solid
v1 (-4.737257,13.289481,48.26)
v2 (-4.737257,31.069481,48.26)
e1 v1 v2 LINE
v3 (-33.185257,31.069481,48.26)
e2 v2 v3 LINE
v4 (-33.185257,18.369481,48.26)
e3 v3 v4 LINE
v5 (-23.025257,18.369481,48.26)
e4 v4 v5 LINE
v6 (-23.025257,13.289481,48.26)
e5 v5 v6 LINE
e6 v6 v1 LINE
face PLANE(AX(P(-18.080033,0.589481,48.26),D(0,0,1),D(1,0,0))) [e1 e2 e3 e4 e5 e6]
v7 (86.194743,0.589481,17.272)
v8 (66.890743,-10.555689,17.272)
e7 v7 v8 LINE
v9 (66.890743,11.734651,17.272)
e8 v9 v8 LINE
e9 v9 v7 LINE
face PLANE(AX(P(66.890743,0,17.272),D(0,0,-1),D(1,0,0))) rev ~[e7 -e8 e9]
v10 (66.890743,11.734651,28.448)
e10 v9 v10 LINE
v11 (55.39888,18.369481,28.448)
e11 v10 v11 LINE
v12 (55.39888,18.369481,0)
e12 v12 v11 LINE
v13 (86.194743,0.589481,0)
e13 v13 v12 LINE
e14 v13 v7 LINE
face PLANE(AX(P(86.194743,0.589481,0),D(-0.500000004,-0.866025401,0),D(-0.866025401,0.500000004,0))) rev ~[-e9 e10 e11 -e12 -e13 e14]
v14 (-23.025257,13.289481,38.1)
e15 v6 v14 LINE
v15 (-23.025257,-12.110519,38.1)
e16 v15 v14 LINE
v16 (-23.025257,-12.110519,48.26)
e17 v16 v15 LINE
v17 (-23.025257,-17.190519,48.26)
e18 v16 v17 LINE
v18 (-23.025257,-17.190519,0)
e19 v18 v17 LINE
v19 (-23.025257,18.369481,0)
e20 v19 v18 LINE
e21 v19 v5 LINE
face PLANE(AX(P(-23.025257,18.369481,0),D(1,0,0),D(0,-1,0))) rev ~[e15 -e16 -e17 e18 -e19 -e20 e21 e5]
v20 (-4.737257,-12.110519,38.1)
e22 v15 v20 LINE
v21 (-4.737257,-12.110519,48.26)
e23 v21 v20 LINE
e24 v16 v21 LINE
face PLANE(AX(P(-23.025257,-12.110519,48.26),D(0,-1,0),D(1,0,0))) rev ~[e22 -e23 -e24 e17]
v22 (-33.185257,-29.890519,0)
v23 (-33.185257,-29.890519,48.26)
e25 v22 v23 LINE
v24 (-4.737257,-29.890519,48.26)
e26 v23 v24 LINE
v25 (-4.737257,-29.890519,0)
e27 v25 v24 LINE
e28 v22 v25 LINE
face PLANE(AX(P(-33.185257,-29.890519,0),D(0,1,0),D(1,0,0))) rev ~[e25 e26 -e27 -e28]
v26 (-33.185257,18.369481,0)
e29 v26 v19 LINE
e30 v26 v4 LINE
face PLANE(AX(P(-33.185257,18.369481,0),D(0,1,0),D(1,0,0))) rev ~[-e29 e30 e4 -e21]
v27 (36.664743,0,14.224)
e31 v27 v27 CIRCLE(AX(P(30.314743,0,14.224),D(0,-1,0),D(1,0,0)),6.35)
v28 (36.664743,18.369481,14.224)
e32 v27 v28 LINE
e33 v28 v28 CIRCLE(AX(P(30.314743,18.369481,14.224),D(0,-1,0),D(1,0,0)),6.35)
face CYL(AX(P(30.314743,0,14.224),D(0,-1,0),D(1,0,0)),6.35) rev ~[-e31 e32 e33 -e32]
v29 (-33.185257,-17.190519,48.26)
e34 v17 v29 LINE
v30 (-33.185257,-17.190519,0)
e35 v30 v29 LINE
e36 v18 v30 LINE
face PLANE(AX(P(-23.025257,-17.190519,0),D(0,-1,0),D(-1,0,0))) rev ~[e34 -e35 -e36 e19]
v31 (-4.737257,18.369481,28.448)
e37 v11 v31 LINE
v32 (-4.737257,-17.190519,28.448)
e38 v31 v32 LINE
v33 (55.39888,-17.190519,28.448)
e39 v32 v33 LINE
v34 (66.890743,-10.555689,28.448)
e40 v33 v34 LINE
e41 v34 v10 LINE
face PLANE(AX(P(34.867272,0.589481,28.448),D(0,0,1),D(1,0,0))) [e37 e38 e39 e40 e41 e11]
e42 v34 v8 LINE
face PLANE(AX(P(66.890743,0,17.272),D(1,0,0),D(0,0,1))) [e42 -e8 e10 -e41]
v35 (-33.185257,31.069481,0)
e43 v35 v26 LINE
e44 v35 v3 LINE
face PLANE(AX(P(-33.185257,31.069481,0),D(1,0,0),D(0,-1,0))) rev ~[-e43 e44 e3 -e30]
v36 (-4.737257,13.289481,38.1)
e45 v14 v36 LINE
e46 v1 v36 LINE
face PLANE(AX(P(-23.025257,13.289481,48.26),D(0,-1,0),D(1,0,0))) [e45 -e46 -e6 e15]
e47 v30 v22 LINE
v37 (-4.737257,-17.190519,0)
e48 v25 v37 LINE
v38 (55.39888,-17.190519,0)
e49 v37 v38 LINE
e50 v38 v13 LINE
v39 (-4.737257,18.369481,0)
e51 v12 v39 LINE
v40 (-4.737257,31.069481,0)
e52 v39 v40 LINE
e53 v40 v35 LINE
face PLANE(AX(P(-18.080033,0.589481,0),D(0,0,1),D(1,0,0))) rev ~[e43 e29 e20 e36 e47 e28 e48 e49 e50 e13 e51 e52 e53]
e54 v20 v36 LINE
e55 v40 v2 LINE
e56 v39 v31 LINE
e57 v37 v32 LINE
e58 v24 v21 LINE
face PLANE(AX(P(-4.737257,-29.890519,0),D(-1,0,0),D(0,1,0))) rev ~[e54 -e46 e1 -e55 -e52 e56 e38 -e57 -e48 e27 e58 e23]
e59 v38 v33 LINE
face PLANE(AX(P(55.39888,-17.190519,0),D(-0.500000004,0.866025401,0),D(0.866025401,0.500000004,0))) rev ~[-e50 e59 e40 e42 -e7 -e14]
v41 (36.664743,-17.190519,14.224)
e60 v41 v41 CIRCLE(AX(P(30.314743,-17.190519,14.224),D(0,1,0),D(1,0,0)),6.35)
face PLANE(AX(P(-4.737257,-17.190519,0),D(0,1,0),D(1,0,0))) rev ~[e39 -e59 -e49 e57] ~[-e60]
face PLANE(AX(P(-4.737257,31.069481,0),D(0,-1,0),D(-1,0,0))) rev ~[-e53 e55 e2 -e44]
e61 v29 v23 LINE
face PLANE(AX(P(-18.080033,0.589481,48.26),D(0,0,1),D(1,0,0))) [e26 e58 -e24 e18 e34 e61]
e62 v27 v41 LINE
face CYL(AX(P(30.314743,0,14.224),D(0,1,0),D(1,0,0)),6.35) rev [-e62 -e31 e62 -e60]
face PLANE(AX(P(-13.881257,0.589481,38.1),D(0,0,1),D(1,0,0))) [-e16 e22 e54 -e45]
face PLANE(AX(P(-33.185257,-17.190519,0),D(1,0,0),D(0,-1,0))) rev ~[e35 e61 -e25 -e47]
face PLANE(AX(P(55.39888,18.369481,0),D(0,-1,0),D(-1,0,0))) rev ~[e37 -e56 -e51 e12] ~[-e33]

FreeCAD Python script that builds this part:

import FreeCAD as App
import Part
import Sketcher
from FreeCAD import Vector
Q = App.Units.Quantity

doc = App.newDocument("Part")
params = doc.addObject("Spreadsheet::Sheet", "Params")
for row, (alias, value) in enumerate([
    ("sketch1_width", "0.4 in"),
    ("sketch1_height", "0.5 in"),
    ("sketch1_height2", "1.4 in"),
    ("sketch1_width2", "1.12 in"),
    ("pad1_length", "1.9 in"),
    ("sketch2_height", "1 in"),
    ("sketch2_width", "0.72 in"),
    ("pocket1_length", "0.4 in"),
    ("sketch3_height", "1.4 in"),
    ("pad2_length", "1.12 in"),
    ("sketch4_diameter", "0.5 in"),
    ("pocket2_length", "3 in"),
], start=1):
    params.set(f"A{row}", alias)
    params.set(f"B{row}", "=" + value)
    params.setAlias(f"B{row}", alias)

body = doc.addObject("PartDesign::Body", "Body")

# Sketch on XY plane
sketch1 = doc.addObject("Sketcher::SketchObject", "Sketch")
body.addObject(sketch1)
sketch1.AttachmentSupport = (doc.XY_Plane, [""])
sketch1.MapMode = "FlatFace"
sketch1.addGeometry([
    Part.LineSegment(Vector(-5, 31, 0), Vector(-33, 31, 0)),  # 0
    Part.LineSegment(Vector(-33, 31, 0), Vector(-33, 18, 0)),  # 1
    Part.LineSegment(Vector(-33, 18, 0), Vector(-23, 18, 0)),  # 2
    Part.LineSegment(Vector(-23, 18, 0), Vector(-23, -17, 0)),  # 3
    Part.LineSegment(Vector(-23, -17, 0), Vector(-33, -17, 0)),  # 4
    Part.LineSegment(Vector(-33, -17, 0), Vector(-33, -30, 0)),  # 5
    Part.LineSegment(Vector(-33, -30, 0), Vector(-5, -30, 0)),  # 6
    Part.LineSegment(Vector(-5, -30, 0), Vector(-5, 31, 0)),  # 7
], False)
sketch1.addConstraint([
    Sketcher.Constraint("Coincident", 0, 2, 1, 1),
    Sketcher.Constraint("Coincident", 1, 2, 2, 1),
    Sketcher.Constraint("Coincident", 2, 2, 3, 1),
    Sketcher.Constraint("Coincident", 3, 2, 4, 1),
    Sketcher.Constraint("Coincident", 4, 2, 5, 1),
    Sketcher.Constraint("Coincident", 5, 2, 6, 1),
    Sketcher.Constraint("Coincident", 6, 2, 7, 1),
    Sketcher.Constraint("Coincident", 7, 2, 0, 1),
    Sketcher.Constraint("Horizontal", 0),
    Sketcher.Constraint("Vertical", 1),
    Sketcher.Constraint("Horizontal", 2),
    Sketcher.Constraint("Vertical", 3),
    Sketcher.Constraint("Horizontal", 4),
    Sketcher.Constraint("Vertical", 5),
    Sketcher.Constraint("Horizontal", 6),
    Sketcher.Constraint("Vertical", 7),
    Sketcher.Constraint("Vertical", 1, 2, 4, 2),
    Sketcher.Constraint("Equal", 1, 5),
    Sketcher.Constraint("DistanceX", 2, 1, 2, 2, Q("0.4 in")),
    Sketcher.Constraint("DistanceY", 1, 2, 1, 1, Q("0.5 in")),
    Sketcher.Constraint("DistanceY", 3, 2, 3, 1, Q("1.4 in")),
    Sketcher.Constraint("DistanceX", 0, 2, 0, 1, Q("1.12 in")),
    Sketcher.Constraint("DistanceY", -1, 1, 0, 2, Q("31.069481 mm")),
    Sketcher.Constraint("DistanceX", 0, 2, -1, 1, Q("33.185257 mm")),
])
sketch1.setExpression("Constraints[18]", "Params.sketch1_width")
sketch1.setExpression("Constraints[19]", "Params.sketch1_height")
sketch1.setExpression("Constraints[20]", "Params.sketch1_height2")
sketch1.setExpression("Constraints[21]", "Params.sketch1_width2")
pad1 = doc.addObject("PartDesign::Pad", "Pad")
body.addObject(pad1)
pad1.Profile = sketch1
pad1.setExpression("Length", "Params.pad1_length")

# Sketch on XY plane
sketch2 = doc.addObject("Sketcher::SketchObject", "Sketch001")
body.addObject(sketch2)
sketch2.AttachmentSupport = (doc.XY_Plane, [""])
sketch2.MapMode = "FlatFace"
sketch2.AttachmentOffset = App.Placement(Vector(0, 0, 1.9 * 25.4), App.Rotation())
sketch2.addGeometry([
    Part.LineSegment(Vector(-23, 13, 0), Vector(-23, -12, 0)),
    Part.LineSegment(Vector(-23, -12, 0), Vector(-5, -12, 0)),
    Part.LineSegment(Vector(-5, -12, 0), Vector(-5, 13, 0)),
    Part.LineSegment(Vector(-5, 13, 0), Vector(-23, 13, 0)),
], False)
sketch2.addConstraint([
    Sketcher.Constraint("Coincident", 0, 2, 1, 1),
    Sketcher.Constraint("Coincident", 1, 2, 2, 1),
    Sketcher.Constraint("Coincident", 2, 2, 3, 1),
    Sketcher.Constraint("Coincident", 3, 2, 0, 1),
    Sketcher.Constraint("Vertical", 0),
    Sketcher.Constraint("Horizontal", 1),
    Sketcher.Constraint("Vertical", 2),
    Sketcher.Constraint("Horizontal", 3),
    Sketcher.Constraint("DistanceY", 0, 2, 0, 1, Q("1 in")),
    Sketcher.Constraint("DistanceX", 1, 1, 1, 2, Q("0.72 in")),
    Sketcher.Constraint("DistanceY", 0, 2, -1, 1, Q("12.110519 mm")),
    Sketcher.Constraint("DistanceX", 0, 2, -1, 1, Q("23.025257 mm")),
])
sketch2.setExpression("Constraints[8]", "Params.sketch2_height")
sketch2.setExpression("Constraints[9]", "Params.sketch2_width")
pocket1 = doc.addObject("PartDesign::Pocket", "Pocket")
body.addObject(pocket1)
pocket1.Profile = sketch2
pocket1.setExpression("Length", "Params.pocket1_length")

# Sketch on XY plane
sketch3 = doc.addObject("Sketcher::SketchObject", "Sketch002")
body.addObject(sketch3)
sketch3.AttachmentSupport = (doc.XY_Plane, [""])
sketch3.MapMode = "FlatFace"
sketch3.addGeometry([
    Part.LineSegment(Vector(-5, 18, 0), Vector(-5, -17, 0)),  # 0
    Part.LineSegment(Vector(-5, -17, 0), Vector(55, -17, 0)),  # 1
    Part.LineSegment(Vector(55, -17, 0), Vector(86, 1, 0)),  # 2
    Part.LineSegment(Vector(86, 1, 0), Vector(55, 18, 0)),  # 3
    Part.LineSegment(Vector(55, 18, 0), Vector(-5, 18, 0)),  # 4
], False)
sketch3.addConstraint([
    Sketcher.Constraint("Coincident", 0, 2, 1, 1),
    Sketcher.Constraint("Coincident", 1, 2, 2, 1),
    Sketcher.Constraint("Coincident", 2, 2, 3, 1),
    Sketcher.Constraint("Coincident", 3, 2, 4, 1),
    Sketcher.Constraint("Coincident", 4, 2, 0, 1),
    Sketcher.Constraint("Vertical", 0),
    Sketcher.Constraint("Horizontal", 1),
    Sketcher.Constraint("Horizontal", 4),
    Sketcher.Constraint("Vertical", 1, 2, 3, 2),
    Sketcher.Constraint("Equal", 2, 3),
    Sketcher.Constraint("DistanceY", 0, 2, 0, 1, Q("1.4 in")),
    Sketcher.Constraint("Angle", 2, Q("30 deg")),
    Sketcher.Constraint("DistanceX", 0, 2, 2, 2, Q("3.58 in")),
    Sketcher.Constraint("DistanceY", 0, 2, -1, 1, Q("17.190519 mm")),
    Sketcher.Constraint("DistanceX", -1, 1, 1, 2, Q("55.39888 mm")),
])
sketch3.setExpression("Constraints[10]", "Params.sketch3_height")
pad2 = doc.addObject("PartDesign::Pad", "Pad001")
body.addObject(pad2)
pad2.Profile = sketch3
pad2.setExpression("Length", "Params.pad2_length")

# Sketch on XZ plane
sketch4 = doc.addObject("Sketcher::SketchObject", "Sketch003")
body.addObject(sketch4)
sketch4.AttachmentSupport = (doc.XZ_Plane, [""])
sketch4.MapMode = "FlatFace"
sketch4.addGeometry([
    Part.Circle(Vector(30, 14, 0), Vector(0, 0, 1), 6),  # 0
    Part.LineSegment(Vector(67, 43, 0), Vector(67, 17, 0)),  # 1
    Part.LineSegment(Vector(67, 17, 0), Vector(119, 17, 0)),  # 2
    Part.LineSegment(Vector(119, 17, 0), Vector(119, 43, 0)),  # 3
    Part.LineSegment(Vector(119, 43, 0), Vector(67, 43, 0)),  # 4
], False)
sketch4.addConstraint([
    Sketcher.Constraint("Coincident", 1, 2, 2, 1),
    Sketcher.Constraint("Coincident", 2, 2, 3, 1),
    Sketcher.Constraint("Coincident", 3, 2, 4, 1),
    Sketcher.Constraint("Coincident", 4, 2, 1, 1),
    Sketcher.Constraint("Vertical", 1),
    Sketcher.Constraint("Horizontal", 2),
    Sketcher.Constraint("Vertical", 3),
    Sketcher.Constraint("Horizontal", 4),
    Sketcher.Constraint("Diameter", 0, Q("0.5 in")),
    Sketcher.Constraint("DistanceY", -1, 1, 0, 3, Q("0.56 in")),
    Sketcher.Constraint("DistanceY", -1, 1, 1, 2, Q("0.68 in")),
    Sketcher.Constraint("DistanceX", 0, 3, 1, 2, Q("1.44 in")),
    Sketcher.Constraint("DistanceX", 2, 1, 2, 2, Q("51.748991 mm")),
    Sketcher.Constraint("DistanceY", 1, 2, 1, 1, Q("25.627352 mm")),
    Sketcher.Constraint("DistanceX", -1, 1, 0, 3, Q("30.314743 mm")),
])
sketch4.setExpression("Constraints[8]", "Params.sketch4_diameter")
pocket2 = doc.addObject("PartDesign::Pocket", "Pocket001")
body.addObject(pocket2)
pocket2.Profile = sketch4
pocket2.setExpression("Length", "Params.pocket2_length")
pocket2.Midplane = True

doc.recompute()
